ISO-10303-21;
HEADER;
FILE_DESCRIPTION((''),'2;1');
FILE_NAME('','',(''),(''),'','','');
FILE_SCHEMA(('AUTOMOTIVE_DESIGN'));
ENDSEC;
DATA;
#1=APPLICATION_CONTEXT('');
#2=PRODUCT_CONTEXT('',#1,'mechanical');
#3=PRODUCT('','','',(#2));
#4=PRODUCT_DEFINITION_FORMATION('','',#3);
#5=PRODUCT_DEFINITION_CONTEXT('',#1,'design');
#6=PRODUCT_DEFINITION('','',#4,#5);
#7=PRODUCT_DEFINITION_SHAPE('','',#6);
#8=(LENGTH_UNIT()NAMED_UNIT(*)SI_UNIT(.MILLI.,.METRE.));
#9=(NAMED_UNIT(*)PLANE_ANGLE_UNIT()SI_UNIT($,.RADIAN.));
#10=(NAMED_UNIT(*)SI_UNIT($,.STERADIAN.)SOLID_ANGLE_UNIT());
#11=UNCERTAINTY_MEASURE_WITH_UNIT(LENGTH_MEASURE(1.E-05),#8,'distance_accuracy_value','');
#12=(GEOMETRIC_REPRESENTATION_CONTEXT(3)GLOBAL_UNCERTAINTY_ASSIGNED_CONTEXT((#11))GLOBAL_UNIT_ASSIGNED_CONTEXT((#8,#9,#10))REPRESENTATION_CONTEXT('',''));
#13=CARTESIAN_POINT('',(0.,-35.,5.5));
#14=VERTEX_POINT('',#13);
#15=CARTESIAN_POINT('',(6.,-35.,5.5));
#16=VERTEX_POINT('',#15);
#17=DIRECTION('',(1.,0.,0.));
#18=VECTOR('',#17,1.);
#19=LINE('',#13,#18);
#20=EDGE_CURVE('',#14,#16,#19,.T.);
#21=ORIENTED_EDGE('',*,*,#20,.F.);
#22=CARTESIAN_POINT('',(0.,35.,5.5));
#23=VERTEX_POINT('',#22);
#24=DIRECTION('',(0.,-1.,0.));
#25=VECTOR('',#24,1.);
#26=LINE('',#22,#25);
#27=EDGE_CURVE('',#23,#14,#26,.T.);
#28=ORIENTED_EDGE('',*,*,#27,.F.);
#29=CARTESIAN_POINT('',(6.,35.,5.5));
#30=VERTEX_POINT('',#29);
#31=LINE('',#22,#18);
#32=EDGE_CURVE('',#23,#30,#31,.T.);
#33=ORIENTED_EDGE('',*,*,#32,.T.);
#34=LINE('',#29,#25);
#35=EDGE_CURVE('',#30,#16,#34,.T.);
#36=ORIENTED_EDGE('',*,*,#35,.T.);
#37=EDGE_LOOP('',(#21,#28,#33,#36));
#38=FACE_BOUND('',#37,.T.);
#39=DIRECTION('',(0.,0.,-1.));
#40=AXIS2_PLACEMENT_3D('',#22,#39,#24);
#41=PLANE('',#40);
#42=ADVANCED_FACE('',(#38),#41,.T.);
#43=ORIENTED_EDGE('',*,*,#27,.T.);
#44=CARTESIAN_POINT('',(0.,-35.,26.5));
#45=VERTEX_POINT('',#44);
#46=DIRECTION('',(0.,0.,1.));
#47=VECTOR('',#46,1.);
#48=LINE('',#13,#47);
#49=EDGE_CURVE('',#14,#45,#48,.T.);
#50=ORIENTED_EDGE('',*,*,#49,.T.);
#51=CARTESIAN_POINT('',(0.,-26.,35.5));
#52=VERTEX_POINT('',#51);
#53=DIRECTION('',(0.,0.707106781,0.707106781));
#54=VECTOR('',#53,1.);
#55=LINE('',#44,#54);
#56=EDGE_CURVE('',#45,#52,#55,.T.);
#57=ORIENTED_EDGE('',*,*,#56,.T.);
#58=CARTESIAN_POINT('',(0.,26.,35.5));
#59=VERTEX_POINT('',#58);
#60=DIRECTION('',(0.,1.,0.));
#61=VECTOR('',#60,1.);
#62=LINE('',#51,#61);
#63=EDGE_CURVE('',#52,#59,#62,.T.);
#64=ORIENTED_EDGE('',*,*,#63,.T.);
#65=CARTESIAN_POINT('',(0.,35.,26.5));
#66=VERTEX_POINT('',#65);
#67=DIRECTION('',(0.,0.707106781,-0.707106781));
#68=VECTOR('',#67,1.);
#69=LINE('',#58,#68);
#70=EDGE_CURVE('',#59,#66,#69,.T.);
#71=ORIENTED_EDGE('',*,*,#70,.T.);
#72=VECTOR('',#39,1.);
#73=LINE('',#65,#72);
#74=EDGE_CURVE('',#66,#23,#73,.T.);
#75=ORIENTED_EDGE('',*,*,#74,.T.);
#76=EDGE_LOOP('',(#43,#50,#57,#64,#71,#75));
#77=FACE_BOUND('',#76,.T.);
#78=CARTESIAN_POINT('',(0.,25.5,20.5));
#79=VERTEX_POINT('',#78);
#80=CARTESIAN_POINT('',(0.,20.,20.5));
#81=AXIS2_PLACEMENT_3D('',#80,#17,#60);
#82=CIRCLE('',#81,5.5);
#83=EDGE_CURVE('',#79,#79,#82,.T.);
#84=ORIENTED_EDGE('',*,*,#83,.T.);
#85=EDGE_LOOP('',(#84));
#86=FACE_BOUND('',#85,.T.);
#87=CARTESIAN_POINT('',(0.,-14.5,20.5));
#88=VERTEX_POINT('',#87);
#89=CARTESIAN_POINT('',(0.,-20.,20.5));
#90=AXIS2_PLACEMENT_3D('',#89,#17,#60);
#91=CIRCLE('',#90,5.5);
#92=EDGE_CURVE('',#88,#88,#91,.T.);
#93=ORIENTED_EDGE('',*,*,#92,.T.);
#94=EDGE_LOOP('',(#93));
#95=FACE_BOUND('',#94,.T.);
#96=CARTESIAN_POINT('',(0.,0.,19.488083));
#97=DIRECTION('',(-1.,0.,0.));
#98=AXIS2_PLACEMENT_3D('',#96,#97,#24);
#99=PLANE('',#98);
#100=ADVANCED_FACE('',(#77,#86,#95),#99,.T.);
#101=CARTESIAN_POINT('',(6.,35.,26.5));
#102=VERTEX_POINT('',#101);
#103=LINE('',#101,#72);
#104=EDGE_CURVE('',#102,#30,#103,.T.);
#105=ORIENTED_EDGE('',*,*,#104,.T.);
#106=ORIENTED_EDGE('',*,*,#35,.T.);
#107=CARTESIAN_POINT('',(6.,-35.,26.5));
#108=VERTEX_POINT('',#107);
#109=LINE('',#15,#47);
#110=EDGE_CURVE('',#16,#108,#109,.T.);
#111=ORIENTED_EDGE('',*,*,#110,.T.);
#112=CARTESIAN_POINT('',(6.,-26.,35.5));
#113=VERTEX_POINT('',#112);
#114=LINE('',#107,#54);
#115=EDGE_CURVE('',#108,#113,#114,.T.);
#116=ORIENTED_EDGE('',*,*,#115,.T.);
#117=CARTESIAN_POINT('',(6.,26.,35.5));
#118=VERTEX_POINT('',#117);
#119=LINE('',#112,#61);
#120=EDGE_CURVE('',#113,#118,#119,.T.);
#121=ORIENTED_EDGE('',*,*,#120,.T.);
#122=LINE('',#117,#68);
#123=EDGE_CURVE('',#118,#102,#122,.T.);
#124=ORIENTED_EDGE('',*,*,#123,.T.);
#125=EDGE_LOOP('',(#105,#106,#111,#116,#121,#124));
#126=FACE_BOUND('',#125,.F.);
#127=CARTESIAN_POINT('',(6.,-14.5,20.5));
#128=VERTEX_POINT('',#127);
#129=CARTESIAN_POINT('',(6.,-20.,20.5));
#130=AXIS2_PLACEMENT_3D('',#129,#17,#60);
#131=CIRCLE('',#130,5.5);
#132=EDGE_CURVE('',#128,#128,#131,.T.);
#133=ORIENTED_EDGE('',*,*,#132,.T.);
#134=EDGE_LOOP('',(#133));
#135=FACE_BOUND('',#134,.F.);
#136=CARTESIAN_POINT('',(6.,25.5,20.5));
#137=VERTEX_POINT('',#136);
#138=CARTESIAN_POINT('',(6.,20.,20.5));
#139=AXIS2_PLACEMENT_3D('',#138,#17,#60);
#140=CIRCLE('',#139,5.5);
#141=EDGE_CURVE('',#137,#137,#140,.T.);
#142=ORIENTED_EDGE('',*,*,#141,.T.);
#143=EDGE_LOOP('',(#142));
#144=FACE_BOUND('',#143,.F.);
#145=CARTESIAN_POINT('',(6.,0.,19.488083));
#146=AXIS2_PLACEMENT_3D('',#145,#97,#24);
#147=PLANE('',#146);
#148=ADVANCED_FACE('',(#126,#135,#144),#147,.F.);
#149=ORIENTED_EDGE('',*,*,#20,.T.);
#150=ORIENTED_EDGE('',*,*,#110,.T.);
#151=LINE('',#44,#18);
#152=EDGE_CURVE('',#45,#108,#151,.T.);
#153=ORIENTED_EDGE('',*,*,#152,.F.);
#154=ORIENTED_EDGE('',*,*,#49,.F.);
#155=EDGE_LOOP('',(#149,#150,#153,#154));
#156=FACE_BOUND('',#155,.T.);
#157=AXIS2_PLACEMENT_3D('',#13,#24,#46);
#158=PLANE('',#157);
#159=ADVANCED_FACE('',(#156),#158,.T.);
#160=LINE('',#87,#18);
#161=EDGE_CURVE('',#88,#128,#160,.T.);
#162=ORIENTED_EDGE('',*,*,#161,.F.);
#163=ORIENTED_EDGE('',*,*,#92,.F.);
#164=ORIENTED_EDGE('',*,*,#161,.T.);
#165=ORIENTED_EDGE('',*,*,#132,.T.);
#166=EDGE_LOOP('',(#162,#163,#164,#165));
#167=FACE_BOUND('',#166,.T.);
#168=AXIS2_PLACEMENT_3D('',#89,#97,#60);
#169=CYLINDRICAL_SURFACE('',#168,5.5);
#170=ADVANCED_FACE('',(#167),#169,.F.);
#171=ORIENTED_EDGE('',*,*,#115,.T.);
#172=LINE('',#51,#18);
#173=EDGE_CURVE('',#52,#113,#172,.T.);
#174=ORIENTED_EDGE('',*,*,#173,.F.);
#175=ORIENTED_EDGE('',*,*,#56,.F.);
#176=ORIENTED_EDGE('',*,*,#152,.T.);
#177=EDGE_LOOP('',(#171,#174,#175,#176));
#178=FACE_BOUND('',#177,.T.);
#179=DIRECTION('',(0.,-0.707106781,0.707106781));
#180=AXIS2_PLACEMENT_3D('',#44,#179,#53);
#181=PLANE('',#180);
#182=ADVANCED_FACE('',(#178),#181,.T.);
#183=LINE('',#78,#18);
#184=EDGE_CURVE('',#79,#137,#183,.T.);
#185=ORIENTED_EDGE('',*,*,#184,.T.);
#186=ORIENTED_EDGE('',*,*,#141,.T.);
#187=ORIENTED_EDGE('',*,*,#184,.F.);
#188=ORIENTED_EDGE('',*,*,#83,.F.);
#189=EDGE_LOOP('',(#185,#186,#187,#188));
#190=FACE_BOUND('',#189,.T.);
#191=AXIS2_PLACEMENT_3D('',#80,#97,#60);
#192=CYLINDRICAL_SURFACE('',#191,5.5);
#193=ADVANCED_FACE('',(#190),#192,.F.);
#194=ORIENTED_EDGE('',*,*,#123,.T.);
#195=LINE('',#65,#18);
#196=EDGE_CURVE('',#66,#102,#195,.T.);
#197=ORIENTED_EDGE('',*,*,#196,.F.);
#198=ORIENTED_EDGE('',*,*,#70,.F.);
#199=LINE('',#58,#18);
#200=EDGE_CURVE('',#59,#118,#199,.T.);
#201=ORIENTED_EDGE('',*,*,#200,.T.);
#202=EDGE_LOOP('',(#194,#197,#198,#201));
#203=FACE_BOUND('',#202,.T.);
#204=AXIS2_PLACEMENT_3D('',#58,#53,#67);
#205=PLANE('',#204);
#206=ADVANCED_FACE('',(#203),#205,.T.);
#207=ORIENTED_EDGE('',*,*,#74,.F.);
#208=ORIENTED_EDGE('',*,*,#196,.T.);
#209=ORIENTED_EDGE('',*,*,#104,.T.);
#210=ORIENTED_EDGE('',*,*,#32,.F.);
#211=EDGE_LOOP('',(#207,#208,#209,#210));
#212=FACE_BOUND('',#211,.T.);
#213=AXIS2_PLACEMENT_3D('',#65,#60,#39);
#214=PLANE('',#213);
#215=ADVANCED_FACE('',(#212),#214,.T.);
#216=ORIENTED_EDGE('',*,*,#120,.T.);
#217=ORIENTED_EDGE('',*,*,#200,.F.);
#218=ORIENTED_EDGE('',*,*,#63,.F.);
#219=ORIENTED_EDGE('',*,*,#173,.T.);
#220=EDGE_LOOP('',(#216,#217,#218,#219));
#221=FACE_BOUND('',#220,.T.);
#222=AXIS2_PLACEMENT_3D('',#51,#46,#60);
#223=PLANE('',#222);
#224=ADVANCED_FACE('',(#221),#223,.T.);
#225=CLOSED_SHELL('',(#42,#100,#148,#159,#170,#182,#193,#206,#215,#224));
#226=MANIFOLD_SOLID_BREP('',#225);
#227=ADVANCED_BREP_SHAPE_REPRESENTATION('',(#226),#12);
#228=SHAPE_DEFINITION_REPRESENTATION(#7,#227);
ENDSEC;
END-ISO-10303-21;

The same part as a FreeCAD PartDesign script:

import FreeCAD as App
import Part
import Sketcher
from FreeCAD import Vector
Q = App.Units.Quantity


def add_polygon(sketch, points):
    """Adds a closed chain of lines whose ends are joined by coincident constraints."""
    first, n = sketch.GeometryCount, len(points)
    for a, b in zip(points, points[1:] + points[:1]):
        sketch.addGeometry(Part.LineSegment(App.Vector(*a, 0), App.Vector(*b, 0)), False)
    for i in range(n):
        sketch.addConstraint(Sketcher.Constraint("Coincident", first + i, 2, first + (i + 1) % n, 1))

doc = App.newDocument("Part")
body = doc.addObject("PartDesign::Body", "Body")

sketch1 = doc.addObject("Sketcher::SketchObject", "Sketch")
body.addObject(sketch1)
sketch1.AttachmentSupport = (doc.YZ_Plane, [""])
sketch1.MapMode = "FlatFace"
add_polygon(sketch1, [(26, 36), (-26, 36), (-35, 26), (-35, 6), (35, 6), (35, 26)])
sketch1.addGeometry(Part.Circle(Vector(20, 20, 0), Vector(0, 0, 1), 6), False)
sketch1.addGeometry(Part.Circle(Vector(-20, 20, 0), Vector(0, 0, 1), 6), False)
sketch1.addConstraint([
    Sketcher.Constraint("Horizontal", 0),
    Sketcher.Constraint("Vertical", 2),
    Sketcher.Constraint("Horizontal", 3),
    Sketcher.Constraint("Vertical", 4),
    Sketcher.Constraint("Equal", 6, 7),
    Sketcher.Constraint("Symmetric", 6, 3, 7, 3, -2),
    Sketcher.Constraint("Symmetric", 1, 2, 4, 2, -2),
    Sketcher.Constraint("Perpendicular", 1, 5),
    Sketcher.Constraint("Equal", 1, 5),
    Sketcher.Constraint("Diameter", 6, Q("11 mm")),
    Sketcher.Constraint("DistanceX", 0, 2, 0, 1, Q("52 mm")),
    Sketcher.Constraint("DistanceX", 3, 1, 3, 2, Q("70 mm")),
    Sketcher.Constraint("DistanceY", 2, 2, 2, 1, Q("21 mm")),
    Sketcher.Constraint("DistanceX", -1, 1, 6, 3, Q("20 mm")),
    Sketcher.Constraint("DistanceY", 7, 3, 0, 2, Q("15 mm")),
    Sketcher.Constraint("DistanceY", -1, 1, 6, 3, Q("20.5 mm")),
])
pad1 = doc.addObject("PartDesign::Pad", "Pad")
body.addObject(pad1)
pad1.Profile = sketch1
pad1.Length = 6

doc.recompute()
